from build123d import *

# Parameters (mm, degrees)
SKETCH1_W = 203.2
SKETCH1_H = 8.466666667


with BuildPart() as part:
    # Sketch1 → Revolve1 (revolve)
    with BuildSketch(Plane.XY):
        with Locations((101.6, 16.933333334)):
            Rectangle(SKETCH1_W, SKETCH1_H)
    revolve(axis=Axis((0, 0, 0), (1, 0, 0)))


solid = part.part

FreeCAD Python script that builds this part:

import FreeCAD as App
import Part
import Sketcher
Q = App.Units.Quantity


def add_polygon(sketch, points):
    """Adds a closed chain of lines whose ends are joined by coincident constraints."""
    first, n = sketch.GeometryCount, len(points)
    for a, b in zip(points, points[1:] + points[:1]):
        sketch.addGeometry(Part.LineSegment(App.Vector(*a, 0), App.Vector(*b, 0)), False)
    for i in range(n):
        sketch.addConstraint(Sketcher.Constraint("Coincident", first + i, 2, first + (i + 1) % n, 1))

doc = App.newDocument("Part")
body = doc.addObject("PartDesign::Body", "Body")

# Sketch on XY plane
sketch1 = body.newObject("Sketcher::SketchObject", "Sketch")
sketch1.AttachmentSupport = (doc.getObject("XY_Plane"), [""])
sketch1.MapMode = "FlatFace"
add_polygon(sketch1, [(0, 21), (0, 13), (203, 13), (203, 21)])  # lines 0-3
sketch1.addConstraint([
    Sketcher.Constraint("Vertical", 0),
    Sketcher.Constraint("Horizontal", 1),
    Sketcher.Constraint("Vertical", 2),
    Sketcher.Constraint("Horizontal", 3),
    Sketcher.Constraint("PointOnObject", 0, 2, -2),
    Sketcher.Constraint("DistanceX", 1, 1, 1, 2, Q("8 in")),
    Sketcher.Constraint("DistanceY", -1, 1, 0, 2, Q("0.5 in")),
    Sketcher.Constraint("DistanceY", 0, 2, 0, 1, 8.466667),
])
revolution = body.newObject("PartDesign::Revolution", "Revolution")
revolution.Profile = sketch1
revolution.ReferenceAxis = (sketch1, ["H_Axis"])
revolution.Angle = 360

doc.recompute()
